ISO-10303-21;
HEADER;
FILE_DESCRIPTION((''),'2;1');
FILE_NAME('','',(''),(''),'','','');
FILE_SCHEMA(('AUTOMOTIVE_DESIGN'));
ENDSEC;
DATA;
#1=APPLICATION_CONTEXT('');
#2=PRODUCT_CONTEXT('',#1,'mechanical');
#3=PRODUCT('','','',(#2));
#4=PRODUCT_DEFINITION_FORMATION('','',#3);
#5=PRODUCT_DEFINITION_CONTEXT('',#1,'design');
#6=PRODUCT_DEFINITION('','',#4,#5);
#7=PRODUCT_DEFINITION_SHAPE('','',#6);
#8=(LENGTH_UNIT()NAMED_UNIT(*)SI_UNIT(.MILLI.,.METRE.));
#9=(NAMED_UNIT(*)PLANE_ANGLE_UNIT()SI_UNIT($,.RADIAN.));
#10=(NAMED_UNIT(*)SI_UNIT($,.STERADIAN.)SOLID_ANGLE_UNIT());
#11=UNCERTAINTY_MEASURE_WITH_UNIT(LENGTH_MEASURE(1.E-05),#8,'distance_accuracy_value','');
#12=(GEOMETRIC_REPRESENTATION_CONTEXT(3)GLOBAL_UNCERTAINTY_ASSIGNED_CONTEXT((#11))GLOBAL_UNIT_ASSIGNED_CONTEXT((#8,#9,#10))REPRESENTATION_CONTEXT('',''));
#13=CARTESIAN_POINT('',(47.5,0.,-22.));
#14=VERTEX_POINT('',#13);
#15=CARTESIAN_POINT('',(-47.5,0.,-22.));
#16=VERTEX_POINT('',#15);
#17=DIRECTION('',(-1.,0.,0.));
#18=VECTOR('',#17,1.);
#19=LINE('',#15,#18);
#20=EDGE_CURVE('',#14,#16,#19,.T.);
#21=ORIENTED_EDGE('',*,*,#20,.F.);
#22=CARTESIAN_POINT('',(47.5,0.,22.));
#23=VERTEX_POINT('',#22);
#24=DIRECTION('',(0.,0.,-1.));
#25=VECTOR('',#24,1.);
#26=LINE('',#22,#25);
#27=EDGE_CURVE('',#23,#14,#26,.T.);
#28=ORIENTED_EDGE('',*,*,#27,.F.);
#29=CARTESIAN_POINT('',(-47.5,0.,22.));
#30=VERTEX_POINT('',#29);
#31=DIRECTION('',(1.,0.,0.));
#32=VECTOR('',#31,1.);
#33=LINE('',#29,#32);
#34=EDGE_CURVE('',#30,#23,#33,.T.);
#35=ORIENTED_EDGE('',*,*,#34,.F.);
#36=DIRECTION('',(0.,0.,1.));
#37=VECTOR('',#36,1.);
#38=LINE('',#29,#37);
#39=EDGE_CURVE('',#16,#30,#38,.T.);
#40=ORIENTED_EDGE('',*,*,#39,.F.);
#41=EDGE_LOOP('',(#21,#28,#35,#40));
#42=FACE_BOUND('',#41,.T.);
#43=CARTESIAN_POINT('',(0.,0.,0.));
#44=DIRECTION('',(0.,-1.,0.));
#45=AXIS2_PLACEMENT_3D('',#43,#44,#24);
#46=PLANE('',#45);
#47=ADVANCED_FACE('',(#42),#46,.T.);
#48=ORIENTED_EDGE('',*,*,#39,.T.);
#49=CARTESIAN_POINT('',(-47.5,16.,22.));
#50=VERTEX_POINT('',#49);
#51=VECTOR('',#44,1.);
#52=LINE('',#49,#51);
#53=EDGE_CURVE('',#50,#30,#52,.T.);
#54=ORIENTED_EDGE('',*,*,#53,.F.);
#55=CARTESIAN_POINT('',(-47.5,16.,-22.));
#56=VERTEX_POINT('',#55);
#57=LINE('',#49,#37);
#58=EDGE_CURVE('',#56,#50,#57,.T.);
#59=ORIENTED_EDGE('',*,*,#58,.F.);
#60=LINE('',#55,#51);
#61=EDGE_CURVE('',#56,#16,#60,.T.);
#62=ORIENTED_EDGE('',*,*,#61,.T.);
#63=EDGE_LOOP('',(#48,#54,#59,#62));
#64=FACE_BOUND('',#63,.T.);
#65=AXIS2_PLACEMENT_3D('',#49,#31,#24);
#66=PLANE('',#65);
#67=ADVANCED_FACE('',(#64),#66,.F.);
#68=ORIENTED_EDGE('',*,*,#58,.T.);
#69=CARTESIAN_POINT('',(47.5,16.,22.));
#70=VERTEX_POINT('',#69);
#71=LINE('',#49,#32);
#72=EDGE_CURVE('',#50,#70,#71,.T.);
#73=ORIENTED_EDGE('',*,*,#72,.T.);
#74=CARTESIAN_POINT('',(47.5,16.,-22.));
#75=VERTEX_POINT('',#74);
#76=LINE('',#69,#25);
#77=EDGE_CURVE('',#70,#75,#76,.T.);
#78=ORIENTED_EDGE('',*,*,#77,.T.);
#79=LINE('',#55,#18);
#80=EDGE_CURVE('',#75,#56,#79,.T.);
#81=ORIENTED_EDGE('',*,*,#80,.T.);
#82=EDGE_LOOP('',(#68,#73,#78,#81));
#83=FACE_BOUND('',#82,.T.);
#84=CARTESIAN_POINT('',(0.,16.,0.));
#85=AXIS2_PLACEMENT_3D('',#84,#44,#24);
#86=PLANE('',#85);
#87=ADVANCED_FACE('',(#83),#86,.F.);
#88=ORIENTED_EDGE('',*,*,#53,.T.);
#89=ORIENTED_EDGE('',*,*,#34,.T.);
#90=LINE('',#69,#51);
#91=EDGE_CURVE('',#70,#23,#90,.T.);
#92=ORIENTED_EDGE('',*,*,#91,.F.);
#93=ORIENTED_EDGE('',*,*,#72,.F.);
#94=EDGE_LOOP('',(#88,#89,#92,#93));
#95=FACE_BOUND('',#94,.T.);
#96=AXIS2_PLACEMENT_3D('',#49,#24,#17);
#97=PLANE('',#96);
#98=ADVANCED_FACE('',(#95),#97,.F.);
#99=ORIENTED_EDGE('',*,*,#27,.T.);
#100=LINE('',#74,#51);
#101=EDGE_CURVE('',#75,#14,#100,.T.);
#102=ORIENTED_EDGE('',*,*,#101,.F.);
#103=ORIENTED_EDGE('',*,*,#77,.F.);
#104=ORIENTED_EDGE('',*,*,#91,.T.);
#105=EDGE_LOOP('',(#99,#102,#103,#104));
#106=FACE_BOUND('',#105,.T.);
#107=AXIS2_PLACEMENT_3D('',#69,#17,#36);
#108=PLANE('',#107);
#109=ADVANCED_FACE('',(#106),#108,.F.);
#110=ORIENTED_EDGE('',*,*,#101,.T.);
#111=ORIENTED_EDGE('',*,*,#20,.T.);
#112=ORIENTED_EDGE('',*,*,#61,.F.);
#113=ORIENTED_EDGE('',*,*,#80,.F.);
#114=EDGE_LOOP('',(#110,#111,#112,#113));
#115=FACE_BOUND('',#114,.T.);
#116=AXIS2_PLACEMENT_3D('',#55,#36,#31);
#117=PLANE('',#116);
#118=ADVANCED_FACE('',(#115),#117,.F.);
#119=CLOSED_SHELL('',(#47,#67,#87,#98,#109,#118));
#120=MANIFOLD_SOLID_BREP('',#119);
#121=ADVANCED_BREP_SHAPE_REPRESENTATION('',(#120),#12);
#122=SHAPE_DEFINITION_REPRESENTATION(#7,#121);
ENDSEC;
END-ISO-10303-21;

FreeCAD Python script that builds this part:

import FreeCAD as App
import Part
import Sketcher

doc = App.newDocument("Part")
body = doc.addObject("PartDesign::Body", "Body")

# Sketch on XZ plane
sketch1 = body.newObject("Sketcher::SketchObject", "Sketch")
sketch1.AttachmentSupport = (doc.getObject("XZ_Plane"), [""])
sketch1.MapMode = "FlatFace"
sketch1.addGeometry([
    Part.LineSegment(App.Vector(-48, -22, 0), App.Vector(-48, 22, 0)),
    Part.LineSegment(App.Vector(-48, 22, 0), App.Vector(48, 22, 0)),
    Part.LineSegment(App.Vector(48, 22, 0), App.Vector(48, -22, 0)),
    Part.LineSegment(App.Vector(48, -22, 0), App.Vector(-48, -22, 0)),
], False)
sketch1.addConstraint([
    Sketcher.Constraint("Coincident", 0, 2, 1, 1),
    Sketcher.Constraint("Coincident", 1, 2, 2, 1),
    Sketcher.Constraint("Coincident", 2, 2, 3, 1),
    Sketcher.Constraint("Coincident", 3, 2, 0, 1),
    Sketcher.Constraint("Vertical", 0),
    Sketcher.Constraint("Horizontal", 1),
    Sketcher.Constraint("Vertical", 2),
    Sketcher.Constraint("Horizontal", 3),
    Sketcher.Constraint("Symmetric", 0, 2, 2, 2, -1, 1),
    Sketcher.Constraint("DistanceX", 1, 1, 1, 2, 95.0),
    Sketcher.Constraint("DistanceY", 0, 1, 0, 2, 44.0),
])
pad1 = body.newObject("PartDesign::Pad", "Pad")
pad1.Profile = sketch1
pad1.Length = 16
pad1.Reversed = True

doc.recompute()
